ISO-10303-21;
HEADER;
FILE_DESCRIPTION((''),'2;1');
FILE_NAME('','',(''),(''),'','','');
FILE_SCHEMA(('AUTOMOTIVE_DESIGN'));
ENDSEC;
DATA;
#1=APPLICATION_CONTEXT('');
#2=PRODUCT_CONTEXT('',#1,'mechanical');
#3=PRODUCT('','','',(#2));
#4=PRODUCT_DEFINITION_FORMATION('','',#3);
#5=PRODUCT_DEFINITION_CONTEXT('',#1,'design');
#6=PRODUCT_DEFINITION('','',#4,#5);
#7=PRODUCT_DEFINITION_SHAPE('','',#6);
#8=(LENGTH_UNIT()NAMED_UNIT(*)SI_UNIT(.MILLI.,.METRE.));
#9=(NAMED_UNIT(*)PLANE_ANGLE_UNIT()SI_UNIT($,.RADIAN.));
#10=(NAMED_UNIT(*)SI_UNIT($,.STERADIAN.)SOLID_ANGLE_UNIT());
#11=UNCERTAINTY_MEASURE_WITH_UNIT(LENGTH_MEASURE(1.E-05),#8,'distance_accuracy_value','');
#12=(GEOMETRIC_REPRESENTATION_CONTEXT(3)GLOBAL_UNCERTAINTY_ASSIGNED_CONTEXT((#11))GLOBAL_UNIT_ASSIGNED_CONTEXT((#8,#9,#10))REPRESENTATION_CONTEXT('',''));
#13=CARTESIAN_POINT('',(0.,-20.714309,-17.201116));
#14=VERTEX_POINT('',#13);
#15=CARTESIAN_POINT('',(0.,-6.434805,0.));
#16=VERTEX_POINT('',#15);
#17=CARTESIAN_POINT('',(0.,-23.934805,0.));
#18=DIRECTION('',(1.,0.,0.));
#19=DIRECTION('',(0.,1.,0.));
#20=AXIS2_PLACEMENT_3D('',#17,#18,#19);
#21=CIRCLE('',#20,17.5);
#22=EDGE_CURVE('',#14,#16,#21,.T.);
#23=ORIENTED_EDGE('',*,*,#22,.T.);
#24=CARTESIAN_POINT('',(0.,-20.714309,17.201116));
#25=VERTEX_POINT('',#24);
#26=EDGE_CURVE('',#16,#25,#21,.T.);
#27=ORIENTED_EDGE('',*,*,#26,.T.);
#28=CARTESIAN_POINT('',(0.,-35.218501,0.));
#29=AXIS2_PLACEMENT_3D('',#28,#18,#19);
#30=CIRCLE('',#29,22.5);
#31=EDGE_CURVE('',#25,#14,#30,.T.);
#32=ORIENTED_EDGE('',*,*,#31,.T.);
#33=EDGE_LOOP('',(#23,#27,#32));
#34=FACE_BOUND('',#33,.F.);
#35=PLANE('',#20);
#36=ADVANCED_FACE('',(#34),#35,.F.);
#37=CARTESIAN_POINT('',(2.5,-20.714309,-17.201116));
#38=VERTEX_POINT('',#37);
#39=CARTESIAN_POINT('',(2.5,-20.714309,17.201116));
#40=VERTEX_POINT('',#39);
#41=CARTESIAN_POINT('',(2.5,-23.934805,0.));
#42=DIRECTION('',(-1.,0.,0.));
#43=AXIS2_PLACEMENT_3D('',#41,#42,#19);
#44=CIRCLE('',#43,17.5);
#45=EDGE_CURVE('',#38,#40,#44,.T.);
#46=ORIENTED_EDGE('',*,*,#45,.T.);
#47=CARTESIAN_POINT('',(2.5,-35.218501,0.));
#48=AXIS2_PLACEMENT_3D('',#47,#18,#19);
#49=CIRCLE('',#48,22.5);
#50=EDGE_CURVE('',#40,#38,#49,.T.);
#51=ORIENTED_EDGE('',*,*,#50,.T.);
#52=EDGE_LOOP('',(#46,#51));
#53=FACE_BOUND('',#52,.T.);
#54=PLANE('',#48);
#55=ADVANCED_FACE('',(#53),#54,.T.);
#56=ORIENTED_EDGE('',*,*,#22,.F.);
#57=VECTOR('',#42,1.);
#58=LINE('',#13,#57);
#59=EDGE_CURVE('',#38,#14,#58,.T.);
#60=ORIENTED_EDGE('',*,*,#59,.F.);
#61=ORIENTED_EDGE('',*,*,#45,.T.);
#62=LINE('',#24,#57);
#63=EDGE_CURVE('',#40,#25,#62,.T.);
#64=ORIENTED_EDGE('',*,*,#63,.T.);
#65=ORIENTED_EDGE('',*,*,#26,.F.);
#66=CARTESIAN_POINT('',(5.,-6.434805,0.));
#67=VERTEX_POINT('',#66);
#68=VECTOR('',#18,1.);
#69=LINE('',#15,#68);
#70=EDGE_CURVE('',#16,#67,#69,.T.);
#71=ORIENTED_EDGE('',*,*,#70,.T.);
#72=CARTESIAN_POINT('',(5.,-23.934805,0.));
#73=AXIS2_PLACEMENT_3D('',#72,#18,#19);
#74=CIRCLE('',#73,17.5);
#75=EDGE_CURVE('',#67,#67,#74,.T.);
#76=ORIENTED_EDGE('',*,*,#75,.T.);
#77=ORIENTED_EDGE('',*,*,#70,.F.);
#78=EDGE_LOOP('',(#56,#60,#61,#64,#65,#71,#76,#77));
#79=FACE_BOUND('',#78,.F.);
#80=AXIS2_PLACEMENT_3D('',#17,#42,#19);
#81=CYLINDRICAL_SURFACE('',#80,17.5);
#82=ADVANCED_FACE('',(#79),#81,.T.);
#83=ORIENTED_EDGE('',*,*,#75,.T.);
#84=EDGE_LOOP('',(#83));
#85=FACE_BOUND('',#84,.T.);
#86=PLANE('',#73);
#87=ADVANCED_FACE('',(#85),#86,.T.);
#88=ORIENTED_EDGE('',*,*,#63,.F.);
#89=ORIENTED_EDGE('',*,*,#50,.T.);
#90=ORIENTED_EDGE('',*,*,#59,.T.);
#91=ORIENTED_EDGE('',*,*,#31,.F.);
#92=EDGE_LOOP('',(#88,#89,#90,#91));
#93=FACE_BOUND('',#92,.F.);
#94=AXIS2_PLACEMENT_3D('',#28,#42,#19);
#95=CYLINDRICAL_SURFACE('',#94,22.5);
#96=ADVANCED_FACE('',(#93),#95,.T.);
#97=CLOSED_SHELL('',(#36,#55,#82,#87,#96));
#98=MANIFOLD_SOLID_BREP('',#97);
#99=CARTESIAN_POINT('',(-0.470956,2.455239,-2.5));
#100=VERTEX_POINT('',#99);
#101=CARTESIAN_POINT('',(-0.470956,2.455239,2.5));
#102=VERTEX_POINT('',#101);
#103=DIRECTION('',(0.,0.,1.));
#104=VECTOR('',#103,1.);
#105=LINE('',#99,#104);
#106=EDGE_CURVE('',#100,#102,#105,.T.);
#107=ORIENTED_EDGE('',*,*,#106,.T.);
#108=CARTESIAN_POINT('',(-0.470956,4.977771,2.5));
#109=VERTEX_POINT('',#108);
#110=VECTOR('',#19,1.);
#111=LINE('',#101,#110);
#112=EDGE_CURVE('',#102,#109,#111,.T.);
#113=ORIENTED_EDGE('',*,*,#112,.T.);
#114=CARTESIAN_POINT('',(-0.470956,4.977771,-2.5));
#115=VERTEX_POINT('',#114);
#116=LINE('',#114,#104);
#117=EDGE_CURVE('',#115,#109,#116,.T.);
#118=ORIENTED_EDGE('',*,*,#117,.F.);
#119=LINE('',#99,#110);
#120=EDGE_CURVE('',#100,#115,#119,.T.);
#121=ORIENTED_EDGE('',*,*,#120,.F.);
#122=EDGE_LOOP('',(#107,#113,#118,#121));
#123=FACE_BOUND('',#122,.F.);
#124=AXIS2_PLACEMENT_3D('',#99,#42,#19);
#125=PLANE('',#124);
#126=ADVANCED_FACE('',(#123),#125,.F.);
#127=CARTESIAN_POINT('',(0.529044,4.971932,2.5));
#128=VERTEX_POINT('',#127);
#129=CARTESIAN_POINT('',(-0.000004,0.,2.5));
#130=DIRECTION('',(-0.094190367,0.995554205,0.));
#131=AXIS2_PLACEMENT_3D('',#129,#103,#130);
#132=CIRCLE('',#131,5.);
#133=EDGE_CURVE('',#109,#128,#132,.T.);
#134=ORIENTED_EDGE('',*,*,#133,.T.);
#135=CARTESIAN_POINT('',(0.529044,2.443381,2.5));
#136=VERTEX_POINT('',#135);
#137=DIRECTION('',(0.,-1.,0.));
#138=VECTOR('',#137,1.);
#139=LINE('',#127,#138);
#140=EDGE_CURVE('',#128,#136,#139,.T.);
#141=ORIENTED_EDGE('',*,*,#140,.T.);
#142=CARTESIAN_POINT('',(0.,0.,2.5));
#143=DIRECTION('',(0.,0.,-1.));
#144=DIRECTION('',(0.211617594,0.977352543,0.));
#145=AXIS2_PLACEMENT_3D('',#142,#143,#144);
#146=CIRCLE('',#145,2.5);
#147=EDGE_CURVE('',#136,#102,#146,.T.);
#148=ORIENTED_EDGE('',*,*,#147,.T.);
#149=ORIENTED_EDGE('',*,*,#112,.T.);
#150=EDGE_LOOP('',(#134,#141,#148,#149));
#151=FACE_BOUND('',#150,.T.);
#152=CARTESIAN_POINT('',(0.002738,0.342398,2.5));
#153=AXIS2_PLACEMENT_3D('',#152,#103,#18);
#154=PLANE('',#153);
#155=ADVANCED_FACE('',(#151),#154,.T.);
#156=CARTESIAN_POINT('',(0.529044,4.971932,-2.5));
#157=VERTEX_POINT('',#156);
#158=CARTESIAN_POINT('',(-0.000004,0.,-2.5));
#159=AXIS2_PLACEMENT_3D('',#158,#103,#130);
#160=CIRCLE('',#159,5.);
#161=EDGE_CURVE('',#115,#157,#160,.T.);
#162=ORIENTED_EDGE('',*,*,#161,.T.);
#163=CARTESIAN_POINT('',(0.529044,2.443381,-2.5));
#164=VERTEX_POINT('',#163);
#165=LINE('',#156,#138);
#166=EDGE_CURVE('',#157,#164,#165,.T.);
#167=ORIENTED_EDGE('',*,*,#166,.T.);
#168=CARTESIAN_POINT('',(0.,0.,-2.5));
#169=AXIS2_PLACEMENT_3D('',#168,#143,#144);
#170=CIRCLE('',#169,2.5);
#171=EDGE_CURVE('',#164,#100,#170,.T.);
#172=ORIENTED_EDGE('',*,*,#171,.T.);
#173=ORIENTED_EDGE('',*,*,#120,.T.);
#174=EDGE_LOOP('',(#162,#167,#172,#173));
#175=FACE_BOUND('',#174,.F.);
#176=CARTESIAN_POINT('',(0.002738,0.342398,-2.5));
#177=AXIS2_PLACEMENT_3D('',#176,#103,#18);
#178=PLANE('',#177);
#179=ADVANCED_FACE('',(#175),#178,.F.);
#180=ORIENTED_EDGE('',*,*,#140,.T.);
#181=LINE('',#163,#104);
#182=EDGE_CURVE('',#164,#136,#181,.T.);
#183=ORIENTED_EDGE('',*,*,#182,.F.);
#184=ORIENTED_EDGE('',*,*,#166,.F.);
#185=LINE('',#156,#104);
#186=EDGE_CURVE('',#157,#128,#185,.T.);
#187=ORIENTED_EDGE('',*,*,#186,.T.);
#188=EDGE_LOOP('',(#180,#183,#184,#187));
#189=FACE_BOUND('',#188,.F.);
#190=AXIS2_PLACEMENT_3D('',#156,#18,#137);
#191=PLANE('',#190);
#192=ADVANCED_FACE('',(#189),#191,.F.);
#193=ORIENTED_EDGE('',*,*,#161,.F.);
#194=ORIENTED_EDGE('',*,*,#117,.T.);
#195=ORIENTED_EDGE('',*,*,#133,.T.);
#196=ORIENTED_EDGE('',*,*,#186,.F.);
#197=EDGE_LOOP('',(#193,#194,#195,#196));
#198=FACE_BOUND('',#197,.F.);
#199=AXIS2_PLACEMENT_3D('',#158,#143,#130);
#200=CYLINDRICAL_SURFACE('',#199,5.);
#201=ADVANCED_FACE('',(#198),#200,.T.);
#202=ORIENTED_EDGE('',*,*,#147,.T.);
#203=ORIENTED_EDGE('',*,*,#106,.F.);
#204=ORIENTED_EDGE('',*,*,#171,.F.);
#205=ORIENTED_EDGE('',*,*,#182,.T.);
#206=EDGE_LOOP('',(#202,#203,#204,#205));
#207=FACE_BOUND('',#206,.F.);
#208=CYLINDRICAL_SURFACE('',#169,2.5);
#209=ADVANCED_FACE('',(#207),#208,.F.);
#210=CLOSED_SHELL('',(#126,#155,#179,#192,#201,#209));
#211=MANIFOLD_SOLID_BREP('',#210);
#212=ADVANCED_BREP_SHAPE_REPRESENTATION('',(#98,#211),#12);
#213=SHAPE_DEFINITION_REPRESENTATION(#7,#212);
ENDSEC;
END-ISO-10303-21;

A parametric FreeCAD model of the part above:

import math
import FreeCAD as App
import Part
import Sketcher

doc = App.newDocument("Part")
body = doc.addObject("PartDesign::Body", "Body")

sketch1 = body.newObject("Sketcher::SketchObject", "Sketch")
sketch1.AttachmentSupport = (doc.getObject("XY_Plane"), [""])
sketch1.MapMode = "FlatFace"
sketch1.addGeometry(Part.LineSegment(App.Vector(-0.470956, 2.455239, 0), App.Vector(-0.470956, 4.977771, 0)), False)
sketch1.addGeometry(Part.ArcOfCircle(Part.Circle(App.Vector(-0.000004, 0, 0), App.Vector(0, 0, 1), 5), math.radians(95.404722), math.radians(443.926185)), False)
sketch1.addGeometry(Part.LineSegment(App.Vector(0.529044, 4.971932, 0), App.Vector(0.529044, 2.443381, 0)), False)
sketch1.addGeometry(Part.ArcOfCircle(Part.Circle(App.Vector(0, 0, 0), App.Vector(0, 0, 1), 2.5), math.radians(100.858401), math.radians(437.782836)), False)
sketch1.addConstraint(Sketcher.Constraint("Coincident", 0, 2, 1, 1))
sketch1.addConstraint(Sketcher.Constraint("Coincident", 1, 2, 2, 1))
sketch1.addConstraint(Sketcher.Constraint("Coincident", 2, 2, 3, 2))
sketch1.addConstraint(Sketcher.Constraint("Coincident", 3, 1, 0, 1))
sketch1.addConstraint(Sketcher.Constraint("Vertical", 0))
sketch1.addConstraint(Sketcher.Constraint("Vertical", 2))
sketch1.addConstraint(Sketcher.Constraint("Coincident", 1, 3, -1, 1))
sketch1.addConstraint(Sketcher.Constraint("Coincident", 3, 3, -1, 1))
sketch1.addConstraint(Sketcher.Constraint("Radius", 1, 5.0))
sketch1.addConstraint(Sketcher.Constraint("Radius", 3, 2.5))
sketch1.addConstraint(Sketcher.Constraint("DistanceX", 0, 2, 1, 2, 1.0))
sketch1.addConstraint(Sketcher.Constraint("DistanceY", 0, 1, 0, 2, 2.522532))
pad1 = body.newObject("PartDesign::Pad", "Pad")
pad1.Profile = sketch1
pad1.Length = 5
body2 = doc.addObject("PartDesign::Body", "Body001")
doc.recompute()

body.Placement = App.Placement(App.Vector(0, 0, -2.5), App.Rotation(App.Vector(0, 0, 1), 0))
boolean = body2.newObject("PartDesign::Boolean", "Boolean")
boolean.Type = "Fuse"
boolean.addObjects([body])
body3 = doc.addObject("PartDesign::Body", "Body002")

sketch2 = body3.newObject("Sketcher::SketchObject", "Sketch001")
sketch2.AttachmentSupport = (doc.getObject("YZ_Plane002"), [""])
sketch2.MapMode = "FlatFace"
sketch2.addGeometry(Part.Circle(App.Vector(-23.934805, 0, 0), App.Vector(0, 0, 1), 17.5), False)
sketch2.addConstraint(Sketcher.Constraint("PointOnObject", 0, 3, -1))
sketch2.addConstraint(Sketcher.Constraint("Diameter", 0, 35.0))
sketch2.addConstraint(Sketcher.Constraint("DistanceX", 0, 3, -1, 1, 23.934805))
pad2 = body3.newObject("PartDesign::Pad", "Pad001")
pad2.Profile = sketch2
pad2.Length = 5

sketch3 = body3.newObject("Sketcher::SketchObject", "Sketch002")
sketch3.AttachmentSupport = (doc.getObject("YZ_Plane002"), [""])
sketch3.MapMode = "FlatFace"
sketch3.addGeometry(Part.Circle(App.Vector(-35.218501, 0, 0), App.Vector(0, 0, 1), 22.5), False)
sketch3.addConstraint(Sketcher.Constraint("PointOnObject", 0, 3, -1))
sketch3.addConstraint(Sketcher.Constraint("Diameter", 0, 45.0))
sketch3.addConstraint(Sketcher.Constraint("DistanceX", 0, 3, -1, 1, 35.218501))
pad3 = body3.newObject("PartDesign::Pad", "Pad002")
pad3.Profile = sketch3
pad3.Length = 2.5

doc.recompute()
